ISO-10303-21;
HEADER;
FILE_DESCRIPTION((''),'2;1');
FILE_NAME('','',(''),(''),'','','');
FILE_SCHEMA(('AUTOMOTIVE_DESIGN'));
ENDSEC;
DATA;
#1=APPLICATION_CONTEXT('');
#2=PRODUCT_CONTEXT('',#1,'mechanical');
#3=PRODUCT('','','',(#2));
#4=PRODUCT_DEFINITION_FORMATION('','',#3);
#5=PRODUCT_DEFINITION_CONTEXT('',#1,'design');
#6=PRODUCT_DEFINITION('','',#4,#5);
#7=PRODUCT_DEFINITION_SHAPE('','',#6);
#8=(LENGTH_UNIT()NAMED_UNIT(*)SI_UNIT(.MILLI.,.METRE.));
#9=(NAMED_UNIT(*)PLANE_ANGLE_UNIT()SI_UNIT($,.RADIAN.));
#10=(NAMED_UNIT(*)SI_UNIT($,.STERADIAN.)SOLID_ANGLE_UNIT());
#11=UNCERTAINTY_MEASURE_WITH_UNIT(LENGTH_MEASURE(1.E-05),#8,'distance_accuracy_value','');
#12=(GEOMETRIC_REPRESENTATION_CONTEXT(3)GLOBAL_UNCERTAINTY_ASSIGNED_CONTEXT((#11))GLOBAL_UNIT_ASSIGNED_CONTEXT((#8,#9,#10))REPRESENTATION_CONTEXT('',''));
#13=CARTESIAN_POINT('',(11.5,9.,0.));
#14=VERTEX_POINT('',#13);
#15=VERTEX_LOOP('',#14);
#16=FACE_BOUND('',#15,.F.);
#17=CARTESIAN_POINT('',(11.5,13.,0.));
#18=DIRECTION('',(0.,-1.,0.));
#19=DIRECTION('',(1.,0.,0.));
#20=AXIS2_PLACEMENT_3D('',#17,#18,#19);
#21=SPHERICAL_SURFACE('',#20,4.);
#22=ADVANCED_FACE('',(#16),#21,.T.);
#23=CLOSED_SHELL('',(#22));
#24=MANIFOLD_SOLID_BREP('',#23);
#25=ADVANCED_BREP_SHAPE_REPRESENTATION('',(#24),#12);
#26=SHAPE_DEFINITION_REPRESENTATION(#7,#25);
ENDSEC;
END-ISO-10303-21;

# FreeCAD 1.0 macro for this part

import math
import FreeCAD as App
import Part
import Sketcher
Q = App.Units.Quantity

doc = App.newDocument("Part")
body = doc.addObject("PartDesign::Body", "Body")

sketch1 = doc.addObject("Sketcher::SketchObject", "Sketch")
body.addObject(sketch1)
sketch1.AttachmentSupport = (doc.XY_Plane, [""])
sketch1.MapMode = "FlatFace"
sketch1.addGeometry(Part.ArcOfCircle(Part.Circle(App.Vector(11.5, 13, 0), App.Vector(0, 0, 1), 4), math.radians(-90), math.radians(90)), False)
sketch1.addGeometry(Part.LineSegment(App.Vector(11.5, 17, 0), App.Vector(11.5, 9, 0)), False)
sketch1.addGeometry(Part.LineSegment(App.Vector(11.5, 9, 0), App.Vector(11.5, 17, 0)), True)
sketch1.addConstraint(Sketcher.Constraint("Coincident", 0, 1, 1, 2))
sketch1.addConstraint(Sketcher.Constraint("Coincident", 1, 1, 0, 2))
sketch1.addConstraint(Sketcher.Constraint("Vertical", 1))
sketch1.addConstraint(Sketcher.Constraint("Vertical", 2))
sketch1.addConstraint(Sketcher.Constraint("Coincident", 2, 1, 0, 1))
sketch1.addConstraint(Sketcher.Constraint("Equal", 1, 2))
sketch1.addConstraint(Sketcher.Constraint("Radius", 0, Q("4 mm")))
sketch1.addConstraint(Sketcher.Constraint("DistanceY", -1, 1, 0, 3, Q("13 mm")))
sketch1.addConstraint(Sketcher.Constraint("DistanceX", -1, 1, 0, 3, Q("11.5 mm")))
sketch1.addConstraint(Sketcher.Constraint("DistanceX", -1, 1, 0, 1, Q("11.5 mm")))
revolution = doc.addObject("PartDesign::Revolution", "Revolution")
body.addObject(revolution)
revolution.Profile = sketch1
revolution.ReferenceAxis = (sketch1, ["Axis0"])
revolution.Angle = 360

doc.recompute()
